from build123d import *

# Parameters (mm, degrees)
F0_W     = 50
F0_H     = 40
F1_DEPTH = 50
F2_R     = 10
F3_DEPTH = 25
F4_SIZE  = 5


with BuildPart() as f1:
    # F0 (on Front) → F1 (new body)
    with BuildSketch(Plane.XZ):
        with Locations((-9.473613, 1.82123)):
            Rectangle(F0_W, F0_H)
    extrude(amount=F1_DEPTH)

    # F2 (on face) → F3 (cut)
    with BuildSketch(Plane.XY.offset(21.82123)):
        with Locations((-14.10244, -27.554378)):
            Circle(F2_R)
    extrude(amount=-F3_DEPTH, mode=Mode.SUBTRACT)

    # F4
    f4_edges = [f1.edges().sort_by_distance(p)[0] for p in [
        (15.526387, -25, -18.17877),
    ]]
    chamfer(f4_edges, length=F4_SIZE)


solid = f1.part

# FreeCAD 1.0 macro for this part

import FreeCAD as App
import Part
import Sketcher

V = App.Vector
Q = App.Units.Quantity


def edges_at(feature, points):
    """Names of the edges that pass closest to the given points."""
    edges = feature.Shape.Edges
    near = lambda p: min(range(len(edges)), key=lambda i: edges[i].distToShape(Part.Vertex(*p))[0])
    return sorted({f"Edge{near(p) + 1}" for p in points})


def add_polygon(sketch, points):
    """Adds a closed chain of lines whose ends are joined by coincident constraints."""
    first, n = sketch.GeometryCount, len(points)
    for a, b in zip(points, points[1:] + points[:1]):
        sketch.addGeometry(Part.LineSegment(App.Vector(*a, 0), App.Vector(*b, 0)), False)
    for i in range(n):
        sketch.addConstraint(Sketcher.Constraint("Coincident", first + i, 2, first + (i + 1) % n, 1))

doc = App.newDocument("Part")
body = doc.addObject("PartDesign::Body", "Body")

# Sketch on XZ plane
sketch1 = doc.addObject("Sketcher::SketchObject", "Sketch")
body.addObject(sketch1)
sketch1.AttachmentSupport = (doc.XZ_Plane, [""])
sketch1.MapMode = "FlatFace"
add_polygon(sketch1, [(-34.473613, 21.82123), (-34.473613, -18.17877), (15.526387, -18.17877), (15.526387, 21.82123)])  # lines 0-3
sketch1.addConstraint(Sketcher.Constraint("Vertical", 0))
sketch1.addConstraint(Sketcher.Constraint("Horizontal", 1))
sketch1.addConstraint(Sketcher.Constraint("Vertical", 2))
sketch1.addConstraint(Sketcher.Constraint("Horizontal", 3))
sketch1.addConstraint(Sketcher.Constraint("DistanceX", 1, 1, 1, 2, Q("50 mm")))
sketch1.addConstraint(Sketcher.Constraint("DistanceY", 0, 2, 0, 1, Q("40 mm")))
sketch1.addConstraint(Sketcher.Constraint("DistanceY", 0, 2, -1, 1, Q("18.17877 mm")))
sketch1.addConstraint(Sketcher.Constraint("DistanceX", 0, 2, -1, 1, Q("34.473613 mm")))
pad1 = doc.addObject("PartDesign::Pad", "Pad")
body.addObject(pad1)
pad1.Profile = sketch1
pad1.Length = 50

# Sketch on XY plane
sketch2 = doc.addObject("Sketcher::SketchObject", "Sketch001")
body.addObject(sketch2)
sketch2.AttachmentSupport = (doc.XY_Plane, [""])
sketch2.MapMode = "FlatFace"
sketch2.AttachmentOffset = App.Placement(V(0, 0, 21.82123), App.Rotation())
sketch2.addGeometry(Part.Circle(V(-14.10244, -27.554378, 0), V(0, 0, 1), 10), False)
sketch2.addConstraint(Sketcher.Constraint("Diameter", 0, Q("20 mm")))
sketch2.addConstraint(Sketcher.Constraint("DistanceX", 0, 3, -1, 1, Q("14.10244 mm")))
sketch2.addConstraint(Sketcher.Constraint("DistanceY", 0, 3, -1, 1, Q("27.554378 mm")))
pocket1 = doc.addObject("PartDesign::Pocket", "Pocket")
body.addObject(pocket1)
pocket1.Profile = sketch2
pocket1.Length = 25
doc.recompute()

chamfer = doc.addObject("PartDesign::Chamfer", "Chamfer")
body.addObject(chamfer)
chamfer.Base = (pocket1, edges_at(pocket1, [(15.526, -25, -18.179)]))
chamfer.Size = 5

doc.recompute()
